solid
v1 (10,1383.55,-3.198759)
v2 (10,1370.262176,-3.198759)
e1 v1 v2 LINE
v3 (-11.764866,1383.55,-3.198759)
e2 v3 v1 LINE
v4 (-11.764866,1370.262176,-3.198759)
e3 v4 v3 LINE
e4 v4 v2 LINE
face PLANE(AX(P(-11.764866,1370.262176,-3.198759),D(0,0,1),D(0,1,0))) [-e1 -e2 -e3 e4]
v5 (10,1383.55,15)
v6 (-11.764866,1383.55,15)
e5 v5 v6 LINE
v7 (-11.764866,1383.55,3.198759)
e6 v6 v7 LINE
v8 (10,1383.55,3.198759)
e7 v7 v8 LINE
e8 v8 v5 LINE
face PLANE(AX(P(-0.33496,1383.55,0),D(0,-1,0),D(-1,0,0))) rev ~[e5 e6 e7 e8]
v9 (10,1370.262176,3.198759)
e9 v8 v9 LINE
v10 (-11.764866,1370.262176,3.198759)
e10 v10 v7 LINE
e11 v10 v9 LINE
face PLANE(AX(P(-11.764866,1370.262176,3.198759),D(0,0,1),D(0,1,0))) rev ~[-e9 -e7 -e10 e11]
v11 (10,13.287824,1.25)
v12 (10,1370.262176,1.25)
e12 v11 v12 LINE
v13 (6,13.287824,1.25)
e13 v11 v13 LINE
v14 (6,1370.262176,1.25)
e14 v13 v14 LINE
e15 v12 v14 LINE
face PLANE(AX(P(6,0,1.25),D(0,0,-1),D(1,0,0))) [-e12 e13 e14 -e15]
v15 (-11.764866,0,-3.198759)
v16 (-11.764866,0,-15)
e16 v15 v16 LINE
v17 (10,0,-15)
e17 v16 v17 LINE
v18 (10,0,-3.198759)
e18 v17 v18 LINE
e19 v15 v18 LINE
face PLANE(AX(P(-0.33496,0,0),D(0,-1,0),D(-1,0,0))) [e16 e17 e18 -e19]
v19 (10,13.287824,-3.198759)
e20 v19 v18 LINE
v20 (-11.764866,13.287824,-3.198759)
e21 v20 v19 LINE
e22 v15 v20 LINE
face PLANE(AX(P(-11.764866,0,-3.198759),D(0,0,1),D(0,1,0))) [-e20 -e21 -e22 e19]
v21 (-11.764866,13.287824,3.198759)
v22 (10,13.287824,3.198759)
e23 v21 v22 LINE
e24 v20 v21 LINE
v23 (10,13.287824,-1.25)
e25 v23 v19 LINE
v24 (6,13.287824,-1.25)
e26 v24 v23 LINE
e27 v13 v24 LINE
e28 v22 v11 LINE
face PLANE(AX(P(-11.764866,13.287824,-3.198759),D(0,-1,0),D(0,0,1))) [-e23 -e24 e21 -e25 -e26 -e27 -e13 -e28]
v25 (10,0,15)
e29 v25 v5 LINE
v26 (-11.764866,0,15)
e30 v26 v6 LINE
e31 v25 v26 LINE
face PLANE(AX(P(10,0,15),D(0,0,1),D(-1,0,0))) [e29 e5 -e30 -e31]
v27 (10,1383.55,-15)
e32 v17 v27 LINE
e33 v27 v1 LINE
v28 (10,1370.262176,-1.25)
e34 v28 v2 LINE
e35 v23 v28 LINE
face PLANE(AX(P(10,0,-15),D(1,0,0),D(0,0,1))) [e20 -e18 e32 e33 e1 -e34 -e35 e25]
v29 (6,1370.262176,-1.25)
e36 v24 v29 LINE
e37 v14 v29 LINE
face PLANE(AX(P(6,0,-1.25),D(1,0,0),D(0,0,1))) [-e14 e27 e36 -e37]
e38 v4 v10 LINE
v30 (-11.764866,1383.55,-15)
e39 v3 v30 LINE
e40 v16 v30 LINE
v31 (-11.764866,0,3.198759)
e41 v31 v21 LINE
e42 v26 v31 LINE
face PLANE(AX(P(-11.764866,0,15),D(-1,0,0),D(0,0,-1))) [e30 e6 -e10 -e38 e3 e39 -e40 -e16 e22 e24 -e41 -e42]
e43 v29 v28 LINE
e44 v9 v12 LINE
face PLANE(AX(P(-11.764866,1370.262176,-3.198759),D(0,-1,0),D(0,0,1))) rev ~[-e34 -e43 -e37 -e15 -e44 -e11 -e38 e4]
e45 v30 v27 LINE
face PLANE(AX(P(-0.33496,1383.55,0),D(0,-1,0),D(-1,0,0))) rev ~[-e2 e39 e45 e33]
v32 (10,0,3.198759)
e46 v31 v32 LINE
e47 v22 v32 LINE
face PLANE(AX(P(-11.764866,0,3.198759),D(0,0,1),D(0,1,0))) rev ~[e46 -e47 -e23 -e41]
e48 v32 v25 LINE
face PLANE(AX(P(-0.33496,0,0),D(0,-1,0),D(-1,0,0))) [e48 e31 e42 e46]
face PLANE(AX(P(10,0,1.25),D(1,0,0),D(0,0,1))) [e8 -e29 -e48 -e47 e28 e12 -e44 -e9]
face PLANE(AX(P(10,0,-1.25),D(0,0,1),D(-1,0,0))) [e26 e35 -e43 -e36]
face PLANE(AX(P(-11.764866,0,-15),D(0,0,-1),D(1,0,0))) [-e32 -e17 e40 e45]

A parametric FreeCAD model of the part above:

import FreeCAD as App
import Part
import Sketcher


def add_polygon(sketch, points):
    """Adds a closed chain of lines whose ends are joined by coincident constraints."""
    first, n = sketch.GeometryCount, len(points)
    for a, b in zip(points, points[1:] + points[:1]):
        sketch.addGeometry(Part.LineSegment(App.Vector(*a, 0), App.Vector(*b, 0)), False)
    for i in range(n):
        sketch.addConstraint(Sketcher.Constraint("Coincident", first + i, 2, first + (i + 1) % n, 1))

doc = App.newDocument("Part")
body = doc.addObject("PartDesign::Body", "Body")

sketch1 = body.newObject("Sketcher::SketchObject", "Sketch")
sketch1.AttachmentSupport = (doc.getObject("XZ_Plane"), [""])
sketch1.MapMode = "FlatFace"
add_polygon(sketch1, [(10, -15), (-11.8, -15), (-11.8, 15), (10, 15), (10, 1.2), (6, 1.2), (6, -1.2), (10, -1.2)])
sketch1.addConstraint([
    Sketcher.Constraint("Horizontal", 0),
    Sketcher.Constraint("Vertical", 1),
    Sketcher.Constraint("Horizontal", 2),
    Sketcher.Constraint("Vertical", 3),
    Sketcher.Constraint("Horizontal", 4),
    Sketcher.Constraint("Vertical", 5),
    Sketcher.Constraint("Horizontal", 6),
    Sketcher.Constraint("Vertical", 7),
    Sketcher.Constraint("Symmetric", 3, 2, 6, 2, -1),
    Sketcher.Constraint("Equal", 3, 7),
    Sketcher.Constraint("DistanceX", 4, 2, 4, 1, 4.0),
    Sketcher.Constraint("DistanceY", 1, 1, 1, 2, 30.0),
    Sketcher.Constraint("DistanceY", 5, 2, 5, 1, 2.5),
    Sketcher.Constraint("DistanceX", -1, 1, 2, 2, 10.0),
    Sketcher.Constraint("DistanceX", 0, 2, 0, 1, 21.764866),
])
pad1 = body.newObject("PartDesign::Pad", "Pad")
pad1.Profile = sketch1
pad1.Length = 1383.55
pad1.Reversed = True

sketch2 = body.newObject("Sketcher::SketchObject", "Sketch001")
sketch2.AttachmentSupport = (doc.getObject("YZ_Plane"), [""])
sketch2.MapMode = "FlatFace"
sketch2.AttachmentOffset = App.Placement(App.Vector(0, 0, -11.764866), App.Rotation())
add_polygon(sketch2, [(13, -3), (0, -3), (0, 3), (13, 3)])
add_polygon(sketch2, [(1384, -3), (1370, -3), (1370, 3), (1384, 3)])
sketch2.addConstraint([
    Sketcher.Constraint("Horizontal", 0),
    Sketcher.Constraint("Vertical", 1),
    Sketcher.Constraint("Horizontal", 2),
    Sketcher.Constraint("Vertical", 3),
    Sketcher.Constraint("Horizontal", 4),
    Sketcher.Constraint("Vertical", 5),
    Sketcher.Constraint("Horizontal", 6),
    Sketcher.Constraint("Vertical", 7),
    Sketcher.Constraint("Symmetric", 0, 2, 1, 2, -1, 1),
    Sketcher.Constraint("Horizontal", 3, 2, 4, 2),
    Sketcher.Constraint("Horizontal", 2, 2, 5, 2),
    Sketcher.Constraint("Equal", 2, 4),
    Sketcher.Constraint("DistanceX", -1, 1, 6, 2, 1383.55),
    Sketcher.Constraint("DistanceY", 1, 1, 1, 2, 6.397519),
    Sketcher.Constraint("DistanceX", 0, 2, 0, 1, 13.287824),
])
pocket1 = body.newObject("PartDesign::Pocket", "Pocket")
pocket1.Profile = sketch2
pocket1.Type = "ThroughAll"
pocket1.Reversed = True

doc.recompute()
